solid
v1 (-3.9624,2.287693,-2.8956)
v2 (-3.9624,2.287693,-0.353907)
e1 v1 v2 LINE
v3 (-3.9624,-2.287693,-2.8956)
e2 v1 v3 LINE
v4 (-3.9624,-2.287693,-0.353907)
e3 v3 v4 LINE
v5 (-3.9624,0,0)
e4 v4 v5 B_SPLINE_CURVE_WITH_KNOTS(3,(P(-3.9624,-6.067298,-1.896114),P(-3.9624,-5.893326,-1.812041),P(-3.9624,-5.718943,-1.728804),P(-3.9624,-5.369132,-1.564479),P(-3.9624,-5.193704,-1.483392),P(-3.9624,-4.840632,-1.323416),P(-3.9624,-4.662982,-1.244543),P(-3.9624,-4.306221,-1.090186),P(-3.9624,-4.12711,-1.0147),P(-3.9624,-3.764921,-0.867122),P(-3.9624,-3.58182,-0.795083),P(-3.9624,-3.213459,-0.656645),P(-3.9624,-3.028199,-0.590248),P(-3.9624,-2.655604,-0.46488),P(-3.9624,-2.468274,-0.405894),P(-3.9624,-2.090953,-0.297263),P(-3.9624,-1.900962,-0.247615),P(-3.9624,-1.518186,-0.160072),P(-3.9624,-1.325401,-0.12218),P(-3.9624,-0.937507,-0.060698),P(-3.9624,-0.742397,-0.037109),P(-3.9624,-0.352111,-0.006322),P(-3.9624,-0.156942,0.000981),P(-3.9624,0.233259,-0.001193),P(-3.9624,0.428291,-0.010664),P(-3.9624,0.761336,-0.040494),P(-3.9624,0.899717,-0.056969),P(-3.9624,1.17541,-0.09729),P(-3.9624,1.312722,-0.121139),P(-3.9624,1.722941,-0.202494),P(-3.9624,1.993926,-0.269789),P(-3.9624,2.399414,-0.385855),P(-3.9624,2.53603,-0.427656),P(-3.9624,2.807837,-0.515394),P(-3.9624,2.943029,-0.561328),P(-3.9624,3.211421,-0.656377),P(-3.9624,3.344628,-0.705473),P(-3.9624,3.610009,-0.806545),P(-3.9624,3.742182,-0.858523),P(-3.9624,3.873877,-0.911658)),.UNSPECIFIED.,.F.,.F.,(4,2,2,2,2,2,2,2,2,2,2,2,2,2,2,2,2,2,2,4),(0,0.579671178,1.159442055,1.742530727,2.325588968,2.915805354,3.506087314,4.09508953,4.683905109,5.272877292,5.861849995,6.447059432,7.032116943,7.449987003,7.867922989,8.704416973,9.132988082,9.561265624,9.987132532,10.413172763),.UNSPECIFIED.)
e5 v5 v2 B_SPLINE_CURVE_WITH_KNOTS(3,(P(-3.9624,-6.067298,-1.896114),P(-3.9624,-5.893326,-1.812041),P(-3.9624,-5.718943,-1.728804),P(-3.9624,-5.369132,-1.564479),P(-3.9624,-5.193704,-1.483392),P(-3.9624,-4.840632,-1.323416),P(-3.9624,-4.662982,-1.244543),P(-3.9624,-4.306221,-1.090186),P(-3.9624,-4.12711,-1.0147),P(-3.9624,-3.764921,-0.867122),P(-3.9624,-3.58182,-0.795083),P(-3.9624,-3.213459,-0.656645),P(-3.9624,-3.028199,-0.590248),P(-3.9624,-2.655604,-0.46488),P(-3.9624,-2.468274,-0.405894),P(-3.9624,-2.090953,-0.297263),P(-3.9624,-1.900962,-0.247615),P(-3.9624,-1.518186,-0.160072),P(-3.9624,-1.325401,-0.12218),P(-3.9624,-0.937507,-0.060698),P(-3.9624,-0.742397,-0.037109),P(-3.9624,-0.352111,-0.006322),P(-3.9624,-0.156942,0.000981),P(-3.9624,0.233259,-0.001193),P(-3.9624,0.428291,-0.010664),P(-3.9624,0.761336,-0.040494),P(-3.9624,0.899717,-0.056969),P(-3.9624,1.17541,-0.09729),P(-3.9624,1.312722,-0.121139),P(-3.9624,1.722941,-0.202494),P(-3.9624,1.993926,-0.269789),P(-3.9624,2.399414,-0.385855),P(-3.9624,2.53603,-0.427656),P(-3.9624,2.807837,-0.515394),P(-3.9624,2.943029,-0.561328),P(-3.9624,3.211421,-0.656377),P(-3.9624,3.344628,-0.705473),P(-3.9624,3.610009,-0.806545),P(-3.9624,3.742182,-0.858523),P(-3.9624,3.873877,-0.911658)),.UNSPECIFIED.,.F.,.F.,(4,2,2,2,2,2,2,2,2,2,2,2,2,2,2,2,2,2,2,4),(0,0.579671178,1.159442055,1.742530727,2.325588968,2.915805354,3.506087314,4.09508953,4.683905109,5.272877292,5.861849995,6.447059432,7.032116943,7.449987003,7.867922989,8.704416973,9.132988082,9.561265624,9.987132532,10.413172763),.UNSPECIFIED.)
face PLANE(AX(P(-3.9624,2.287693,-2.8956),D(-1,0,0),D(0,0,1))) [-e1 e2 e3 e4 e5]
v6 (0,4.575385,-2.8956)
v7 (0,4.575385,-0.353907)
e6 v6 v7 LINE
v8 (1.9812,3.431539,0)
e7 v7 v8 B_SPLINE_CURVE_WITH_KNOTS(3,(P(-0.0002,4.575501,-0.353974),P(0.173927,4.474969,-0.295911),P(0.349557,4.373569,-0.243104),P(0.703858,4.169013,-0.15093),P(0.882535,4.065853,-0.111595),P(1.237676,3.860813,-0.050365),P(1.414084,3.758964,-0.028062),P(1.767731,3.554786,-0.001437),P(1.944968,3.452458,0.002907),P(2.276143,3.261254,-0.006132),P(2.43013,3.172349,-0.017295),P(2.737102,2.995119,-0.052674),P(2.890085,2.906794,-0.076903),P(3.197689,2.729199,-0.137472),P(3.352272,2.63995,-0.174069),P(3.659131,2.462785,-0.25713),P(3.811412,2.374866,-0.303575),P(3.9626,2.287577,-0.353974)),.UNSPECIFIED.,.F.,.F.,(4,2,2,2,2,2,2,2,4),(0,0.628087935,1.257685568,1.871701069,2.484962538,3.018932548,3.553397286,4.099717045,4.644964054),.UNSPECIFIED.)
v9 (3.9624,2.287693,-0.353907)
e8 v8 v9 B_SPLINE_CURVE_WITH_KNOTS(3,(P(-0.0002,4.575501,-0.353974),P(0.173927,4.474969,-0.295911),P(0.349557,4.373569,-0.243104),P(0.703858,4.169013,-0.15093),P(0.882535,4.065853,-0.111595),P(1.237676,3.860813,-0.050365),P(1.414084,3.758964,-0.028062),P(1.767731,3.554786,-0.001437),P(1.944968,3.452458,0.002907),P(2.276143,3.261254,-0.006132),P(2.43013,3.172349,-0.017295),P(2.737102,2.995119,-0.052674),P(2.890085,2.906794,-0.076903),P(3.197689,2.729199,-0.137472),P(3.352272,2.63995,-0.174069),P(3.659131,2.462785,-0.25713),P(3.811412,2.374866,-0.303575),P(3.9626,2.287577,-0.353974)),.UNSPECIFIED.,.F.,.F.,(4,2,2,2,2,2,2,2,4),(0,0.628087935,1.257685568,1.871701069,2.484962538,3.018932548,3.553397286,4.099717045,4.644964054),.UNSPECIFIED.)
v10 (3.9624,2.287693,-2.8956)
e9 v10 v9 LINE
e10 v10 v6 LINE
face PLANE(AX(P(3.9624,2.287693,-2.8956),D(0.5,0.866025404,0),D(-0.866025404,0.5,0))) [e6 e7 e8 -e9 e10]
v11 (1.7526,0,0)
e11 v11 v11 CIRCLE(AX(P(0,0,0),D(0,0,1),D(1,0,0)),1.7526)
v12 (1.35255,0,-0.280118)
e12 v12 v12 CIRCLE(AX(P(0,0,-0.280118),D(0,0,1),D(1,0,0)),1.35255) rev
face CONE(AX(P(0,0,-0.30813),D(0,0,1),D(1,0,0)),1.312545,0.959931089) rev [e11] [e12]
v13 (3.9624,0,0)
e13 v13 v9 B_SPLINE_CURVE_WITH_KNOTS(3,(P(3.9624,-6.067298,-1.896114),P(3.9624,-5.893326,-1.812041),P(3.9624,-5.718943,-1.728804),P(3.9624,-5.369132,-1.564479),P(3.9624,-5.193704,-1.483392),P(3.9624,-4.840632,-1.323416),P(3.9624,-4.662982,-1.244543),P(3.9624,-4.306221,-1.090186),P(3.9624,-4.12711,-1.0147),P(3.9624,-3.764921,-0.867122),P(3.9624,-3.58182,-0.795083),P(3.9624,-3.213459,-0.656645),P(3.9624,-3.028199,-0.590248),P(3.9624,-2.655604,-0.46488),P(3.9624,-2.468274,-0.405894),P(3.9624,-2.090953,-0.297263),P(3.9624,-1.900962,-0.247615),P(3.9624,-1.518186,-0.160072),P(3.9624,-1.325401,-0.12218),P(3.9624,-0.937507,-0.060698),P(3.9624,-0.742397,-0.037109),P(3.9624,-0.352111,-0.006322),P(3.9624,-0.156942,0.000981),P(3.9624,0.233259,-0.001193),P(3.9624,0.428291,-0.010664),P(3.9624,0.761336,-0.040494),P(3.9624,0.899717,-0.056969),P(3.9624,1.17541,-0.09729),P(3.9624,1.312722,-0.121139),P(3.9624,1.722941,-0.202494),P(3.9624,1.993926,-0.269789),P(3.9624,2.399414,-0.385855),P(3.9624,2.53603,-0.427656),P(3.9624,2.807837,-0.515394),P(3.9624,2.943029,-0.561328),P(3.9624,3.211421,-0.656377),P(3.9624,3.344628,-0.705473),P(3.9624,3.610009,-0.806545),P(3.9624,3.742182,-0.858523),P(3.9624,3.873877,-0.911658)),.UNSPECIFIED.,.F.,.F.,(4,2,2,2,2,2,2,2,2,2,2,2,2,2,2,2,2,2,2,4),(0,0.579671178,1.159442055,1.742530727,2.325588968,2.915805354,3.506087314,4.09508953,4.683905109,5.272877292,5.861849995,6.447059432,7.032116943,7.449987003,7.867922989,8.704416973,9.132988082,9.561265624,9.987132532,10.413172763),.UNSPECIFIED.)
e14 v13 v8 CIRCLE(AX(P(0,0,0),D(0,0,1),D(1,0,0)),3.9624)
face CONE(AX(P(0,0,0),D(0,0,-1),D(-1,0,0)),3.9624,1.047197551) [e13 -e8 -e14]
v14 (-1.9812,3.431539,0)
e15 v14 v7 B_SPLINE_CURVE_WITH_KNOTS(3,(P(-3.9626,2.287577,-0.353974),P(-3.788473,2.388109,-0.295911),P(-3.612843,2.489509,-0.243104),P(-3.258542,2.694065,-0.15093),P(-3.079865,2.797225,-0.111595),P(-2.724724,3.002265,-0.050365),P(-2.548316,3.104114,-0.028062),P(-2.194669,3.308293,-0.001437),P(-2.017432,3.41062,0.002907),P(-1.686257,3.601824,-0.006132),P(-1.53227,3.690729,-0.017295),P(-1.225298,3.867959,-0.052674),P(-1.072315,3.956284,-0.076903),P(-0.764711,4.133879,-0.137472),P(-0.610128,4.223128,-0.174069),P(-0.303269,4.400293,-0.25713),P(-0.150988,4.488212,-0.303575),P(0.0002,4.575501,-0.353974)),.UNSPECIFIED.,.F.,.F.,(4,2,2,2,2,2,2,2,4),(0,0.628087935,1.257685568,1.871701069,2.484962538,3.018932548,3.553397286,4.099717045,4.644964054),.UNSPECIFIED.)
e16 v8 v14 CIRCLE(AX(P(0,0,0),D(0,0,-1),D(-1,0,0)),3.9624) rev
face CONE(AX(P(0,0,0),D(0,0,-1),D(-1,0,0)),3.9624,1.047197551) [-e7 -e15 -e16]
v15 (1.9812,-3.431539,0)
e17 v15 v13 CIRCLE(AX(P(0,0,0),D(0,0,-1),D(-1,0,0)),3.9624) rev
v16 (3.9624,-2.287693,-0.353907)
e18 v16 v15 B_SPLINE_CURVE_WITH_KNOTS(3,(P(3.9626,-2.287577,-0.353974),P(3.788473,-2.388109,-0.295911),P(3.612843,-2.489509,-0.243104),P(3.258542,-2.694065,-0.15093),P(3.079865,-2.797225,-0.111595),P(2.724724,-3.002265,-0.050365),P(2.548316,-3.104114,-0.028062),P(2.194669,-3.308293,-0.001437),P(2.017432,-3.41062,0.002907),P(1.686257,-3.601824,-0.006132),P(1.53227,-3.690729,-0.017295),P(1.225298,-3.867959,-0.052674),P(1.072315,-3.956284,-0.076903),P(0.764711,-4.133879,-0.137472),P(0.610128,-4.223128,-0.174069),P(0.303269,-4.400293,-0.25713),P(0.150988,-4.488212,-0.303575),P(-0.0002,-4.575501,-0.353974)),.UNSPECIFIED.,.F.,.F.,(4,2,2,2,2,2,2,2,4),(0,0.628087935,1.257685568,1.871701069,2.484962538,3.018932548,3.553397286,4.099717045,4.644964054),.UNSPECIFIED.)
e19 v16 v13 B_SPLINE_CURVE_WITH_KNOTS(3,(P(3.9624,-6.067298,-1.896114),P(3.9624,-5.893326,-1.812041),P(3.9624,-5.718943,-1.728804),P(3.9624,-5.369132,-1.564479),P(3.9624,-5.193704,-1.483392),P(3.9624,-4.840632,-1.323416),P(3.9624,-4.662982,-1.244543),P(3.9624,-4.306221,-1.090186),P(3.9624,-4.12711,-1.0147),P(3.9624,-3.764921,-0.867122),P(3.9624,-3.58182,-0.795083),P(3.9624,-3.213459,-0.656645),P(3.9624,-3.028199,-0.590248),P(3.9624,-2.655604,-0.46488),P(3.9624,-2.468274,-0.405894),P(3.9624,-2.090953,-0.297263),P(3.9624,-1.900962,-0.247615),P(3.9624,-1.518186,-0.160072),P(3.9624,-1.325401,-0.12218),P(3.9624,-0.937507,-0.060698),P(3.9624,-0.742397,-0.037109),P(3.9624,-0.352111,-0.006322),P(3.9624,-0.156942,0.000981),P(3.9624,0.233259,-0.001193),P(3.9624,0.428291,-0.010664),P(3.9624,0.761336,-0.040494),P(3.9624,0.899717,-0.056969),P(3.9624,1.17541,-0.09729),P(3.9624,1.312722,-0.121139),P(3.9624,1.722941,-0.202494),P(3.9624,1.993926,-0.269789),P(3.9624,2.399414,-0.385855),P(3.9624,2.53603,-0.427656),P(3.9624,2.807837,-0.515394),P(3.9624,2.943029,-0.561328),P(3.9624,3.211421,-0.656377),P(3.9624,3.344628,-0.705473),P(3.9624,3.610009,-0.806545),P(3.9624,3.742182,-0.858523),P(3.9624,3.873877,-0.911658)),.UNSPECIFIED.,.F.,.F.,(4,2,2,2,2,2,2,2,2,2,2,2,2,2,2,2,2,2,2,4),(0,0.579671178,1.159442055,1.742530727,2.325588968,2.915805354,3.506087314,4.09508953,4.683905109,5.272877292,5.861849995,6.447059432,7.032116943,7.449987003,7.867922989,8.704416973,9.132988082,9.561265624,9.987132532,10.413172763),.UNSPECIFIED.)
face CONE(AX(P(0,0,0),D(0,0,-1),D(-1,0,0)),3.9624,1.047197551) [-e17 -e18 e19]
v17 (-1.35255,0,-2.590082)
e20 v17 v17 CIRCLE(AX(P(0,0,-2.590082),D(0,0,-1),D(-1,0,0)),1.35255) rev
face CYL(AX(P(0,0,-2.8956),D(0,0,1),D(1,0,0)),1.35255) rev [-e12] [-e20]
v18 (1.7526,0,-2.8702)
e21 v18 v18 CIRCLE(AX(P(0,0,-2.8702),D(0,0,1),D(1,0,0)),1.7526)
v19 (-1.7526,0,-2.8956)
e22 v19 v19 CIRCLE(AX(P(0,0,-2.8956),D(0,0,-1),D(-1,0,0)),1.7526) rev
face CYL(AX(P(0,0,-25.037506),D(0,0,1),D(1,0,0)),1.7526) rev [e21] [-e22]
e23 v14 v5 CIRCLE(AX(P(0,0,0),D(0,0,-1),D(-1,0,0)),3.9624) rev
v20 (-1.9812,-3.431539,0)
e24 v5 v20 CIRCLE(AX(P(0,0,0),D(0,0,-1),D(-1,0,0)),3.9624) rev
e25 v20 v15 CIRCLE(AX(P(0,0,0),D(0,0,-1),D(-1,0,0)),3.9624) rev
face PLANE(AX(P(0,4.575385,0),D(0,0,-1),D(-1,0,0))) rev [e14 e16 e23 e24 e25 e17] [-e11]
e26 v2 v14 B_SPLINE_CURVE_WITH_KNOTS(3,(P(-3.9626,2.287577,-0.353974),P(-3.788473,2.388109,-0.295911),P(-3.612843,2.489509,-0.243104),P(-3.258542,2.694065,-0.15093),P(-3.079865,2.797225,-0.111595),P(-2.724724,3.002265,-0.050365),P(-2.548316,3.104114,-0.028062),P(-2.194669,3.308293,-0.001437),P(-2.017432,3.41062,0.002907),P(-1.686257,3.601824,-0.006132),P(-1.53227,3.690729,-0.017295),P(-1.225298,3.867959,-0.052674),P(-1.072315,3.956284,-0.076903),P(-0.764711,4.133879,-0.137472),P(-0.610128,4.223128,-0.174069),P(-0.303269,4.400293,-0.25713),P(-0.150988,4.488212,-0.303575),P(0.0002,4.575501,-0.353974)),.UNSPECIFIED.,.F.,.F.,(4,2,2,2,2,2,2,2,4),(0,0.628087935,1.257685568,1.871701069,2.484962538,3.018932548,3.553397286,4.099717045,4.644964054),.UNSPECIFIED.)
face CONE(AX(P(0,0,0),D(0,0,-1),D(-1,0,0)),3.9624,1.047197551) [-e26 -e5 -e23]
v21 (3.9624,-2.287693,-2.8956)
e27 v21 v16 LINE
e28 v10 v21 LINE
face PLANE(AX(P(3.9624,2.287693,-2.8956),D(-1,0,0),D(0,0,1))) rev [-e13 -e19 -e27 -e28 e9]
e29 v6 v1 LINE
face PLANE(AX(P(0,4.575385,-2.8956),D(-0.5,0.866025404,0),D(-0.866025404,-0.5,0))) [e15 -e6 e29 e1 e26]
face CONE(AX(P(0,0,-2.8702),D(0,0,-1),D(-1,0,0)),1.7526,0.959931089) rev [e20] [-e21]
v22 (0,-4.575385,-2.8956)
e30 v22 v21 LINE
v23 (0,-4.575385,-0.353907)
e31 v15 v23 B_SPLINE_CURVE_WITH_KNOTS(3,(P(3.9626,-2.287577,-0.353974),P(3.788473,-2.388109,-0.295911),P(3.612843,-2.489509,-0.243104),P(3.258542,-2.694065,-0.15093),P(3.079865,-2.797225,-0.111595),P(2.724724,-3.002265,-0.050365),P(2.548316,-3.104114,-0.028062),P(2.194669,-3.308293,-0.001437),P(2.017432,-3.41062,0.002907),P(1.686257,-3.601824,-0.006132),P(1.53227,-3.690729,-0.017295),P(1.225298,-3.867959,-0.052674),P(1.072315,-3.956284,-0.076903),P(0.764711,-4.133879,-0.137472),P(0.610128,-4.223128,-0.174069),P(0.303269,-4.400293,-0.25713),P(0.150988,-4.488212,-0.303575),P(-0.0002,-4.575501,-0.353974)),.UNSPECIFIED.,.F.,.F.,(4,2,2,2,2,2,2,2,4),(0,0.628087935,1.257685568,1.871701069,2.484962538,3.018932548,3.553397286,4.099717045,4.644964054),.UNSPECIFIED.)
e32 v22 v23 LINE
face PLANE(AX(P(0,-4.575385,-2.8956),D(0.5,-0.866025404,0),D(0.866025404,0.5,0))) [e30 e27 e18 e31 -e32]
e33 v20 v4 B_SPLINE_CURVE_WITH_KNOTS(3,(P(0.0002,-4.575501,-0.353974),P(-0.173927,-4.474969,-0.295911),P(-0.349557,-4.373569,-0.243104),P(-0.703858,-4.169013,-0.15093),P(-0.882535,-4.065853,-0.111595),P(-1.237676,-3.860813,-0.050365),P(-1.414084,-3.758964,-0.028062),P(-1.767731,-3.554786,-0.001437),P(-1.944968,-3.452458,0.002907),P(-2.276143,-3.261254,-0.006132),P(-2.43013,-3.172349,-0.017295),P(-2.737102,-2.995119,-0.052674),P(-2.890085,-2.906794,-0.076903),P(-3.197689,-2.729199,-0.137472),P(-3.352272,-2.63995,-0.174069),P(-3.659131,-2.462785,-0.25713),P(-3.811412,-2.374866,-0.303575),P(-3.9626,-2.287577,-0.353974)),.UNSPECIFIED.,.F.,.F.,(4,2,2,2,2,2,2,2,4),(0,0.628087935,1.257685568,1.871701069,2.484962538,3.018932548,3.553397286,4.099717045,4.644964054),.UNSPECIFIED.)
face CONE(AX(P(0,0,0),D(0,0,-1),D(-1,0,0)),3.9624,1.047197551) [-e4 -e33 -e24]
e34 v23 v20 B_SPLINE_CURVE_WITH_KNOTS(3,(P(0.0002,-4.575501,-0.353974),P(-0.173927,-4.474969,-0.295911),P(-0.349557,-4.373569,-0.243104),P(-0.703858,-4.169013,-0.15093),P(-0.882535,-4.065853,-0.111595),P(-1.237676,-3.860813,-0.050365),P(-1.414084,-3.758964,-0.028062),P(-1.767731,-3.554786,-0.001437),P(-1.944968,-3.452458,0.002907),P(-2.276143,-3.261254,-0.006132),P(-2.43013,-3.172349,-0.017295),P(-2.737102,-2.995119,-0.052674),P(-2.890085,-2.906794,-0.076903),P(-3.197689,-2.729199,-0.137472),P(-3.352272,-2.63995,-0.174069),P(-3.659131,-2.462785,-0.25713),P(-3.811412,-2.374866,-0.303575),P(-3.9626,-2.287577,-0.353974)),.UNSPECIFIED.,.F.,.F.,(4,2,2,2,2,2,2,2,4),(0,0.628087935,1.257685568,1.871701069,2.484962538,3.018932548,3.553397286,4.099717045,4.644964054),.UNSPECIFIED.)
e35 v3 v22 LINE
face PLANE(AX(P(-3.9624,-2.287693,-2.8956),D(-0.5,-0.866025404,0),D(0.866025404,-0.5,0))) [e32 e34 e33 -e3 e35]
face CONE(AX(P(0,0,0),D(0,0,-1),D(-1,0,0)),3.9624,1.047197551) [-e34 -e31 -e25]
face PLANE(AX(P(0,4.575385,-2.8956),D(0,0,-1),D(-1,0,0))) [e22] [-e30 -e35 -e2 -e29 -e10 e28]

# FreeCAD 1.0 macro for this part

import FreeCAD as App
import Part
import Sketcher
from FreeCAD import Vector
Q = App.Units.Quantity

doc = App.newDocument("Part")
body = doc.addObject("PartDesign::Body", "Body")

sketch1 = body.newObject("Sketcher::SketchObject", "Sketch")
sketch1.AttachmentSupport = (doc.getObject("XY_Plane"), [""])
sketch1.MapMode = "FlatFace"
sketch1.AttachmentOffset = App.Placement(Vector(0, 0, -0.114 * 25.4), App.Rotation())
sketch1.addGeometry([
    Part.LineSegment(Vector(4, -2.3, 0), Vector(4, 2.3, 0)),
    Part.LineSegment(Vector(4, 2.3, 0), Vector(0, 4.6, 0)),
    Part.LineSegment(Vector(0, 4.6, 0), Vector(-4, 2.3, 0)),
    Part.LineSegment(Vector(-4, 2.3, 0), Vector(-4, -2.3, 0)),
    Part.LineSegment(Vector(-4, -2.3, 0), Vector(0, -4.6, 0)),
    Part.LineSegment(Vector(0, -4.6, 0), Vector(4, -2.3, 0)),
    Part.Circle(Vector(0, 0, 0), Vector(0, 0, 1), 1.4),
], False)
sketch1.addConstraint([
    Sketcher.Constraint("Coincident", 0, 2, 1, 1),
    Sketcher.Constraint("Coincident", 1, 2, 2, 1),
    Sketcher.Constraint("Coincident", 2, 2, 3, 1),
    Sketcher.Constraint("Coincident", 3, 2, 4, 1),
    Sketcher.Constraint("Coincident", 4, 2, 5, 1),
    Sketcher.Constraint("Coincident", 5, 2, 0, 1),
    Sketcher.Constraint("Vertical", 0),
    Sketcher.Constraint("Vertical", 3),
    Sketcher.Constraint("Coincident", 6, 3, -1, 1),
    Sketcher.Constraint("Symmetric", 0, 2, 3, 2, -1, 1),
    Sketcher.Constraint("Symmetric", 1, 2, 4, 2, -1, 1),
    Sketcher.Constraint("PointOnObject", 1, 2, -2),
    Sketcher.Constraint("Parallel", 2, 5),
    Sketcher.Constraint("Horizontal", 0, 2, 2, 2),
    Sketcher.Constraint("Angle", 1, Q("150 deg")),
    Sketcher.Constraint("Diameter", 6, Q("0.1065 in")),
    Sketcher.Constraint("DistanceX", -1, 1, 0, 2, Q("0.156 in")),
    Sketcher.Constraint("DistanceY", 3, 2, 1, 2, Q("0.2701999 in")),
])
pad1 = body.newObject("PartDesign::Pad", "Pad")
pad1.Profile = sketch1
pad1.Length = Q("0.114 in")

sketch2 = body.newObject("Sketcher::SketchObject", "Sketch001")
sketch2.AttachmentSupport = (doc.getObject("YZ_Plane"), [""])
sketch2.MapMode = "FlatFace"
sketch2.addGeometry([
    Part.LineSegment(Vector(4, 12.7, 0), Vector(4, 0, 0)),
    Part.LineSegment(Vector(4, 0, 0), Vector(4.6, -0.4, 0)),
    Part.LineSegment(Vector(4.6, -0.4, 0), Vector(17.3, -0.4, 0)),
    Part.LineSegment(Vector(17.3, -0.4, 0), Vector(17.3, 12.7, 0)),
    Part.LineSegment(Vector(17.3, 12.7, 0), Vector(4, 12.7, 0)),
], False)
sketch2.addConstraint([
    Sketcher.Constraint("Coincident", 0, 2, 1, 1),
    Sketcher.Constraint("Coincident", 1, 2, 2, 1),
    Sketcher.Constraint("Coincident", 2, 2, 3, 1),
    Sketcher.Constraint("Coincident", 3, 2, 4, 1),
    Sketcher.Constraint("Coincident", 4, 2, 0, 1),
    Sketcher.Constraint("Vertical", 0),
    Sketcher.Constraint("Horizontal", 2),
    Sketcher.Constraint("Vertical", 3),
    Sketcher.Constraint("Horizontal", 4),
    Sketcher.Constraint("PointOnObject", 0, 2, -1),
    Sketcher.Constraint("Equal", 2, 0),
    Sketcher.Constraint("DistanceX", 2, 1, 2, 2, Q("0.5 in")),
    Sketcher.Constraint("Angle", 1, Q("-30 deg")),
    Sketcher.Constraint("DistanceX", -1, 1, 0, 2, Q("0.156 in")),
    Sketcher.Constraint("DistanceX", 4, 2, 4, 1, Q("13.312985 mm")),
])
groove = body.newObject("PartDesign::Groove", "Groove")
groove.Profile = sketch2
groove.ReferenceAxis = (sketch2, ["V_Axis"])
groove.Angle = 360

sketch3 = body.newObject("Sketcher::SketchObject", "Sketch002")
sketch3.AttachmentSupport = (doc.getObject("YZ_Plane"), [""])
sketch3.MapMode = "FlatFace"
sketch3.addGeometry([
    Part.LineSegment(Vector(1.75, -2.87, 0), Vector(1.31, -2.56, 0)),
    Part.LineSegment(Vector(1.31, -2.56, 0), Vector(1.31, -2.92, 0)),
    Part.LineSegment(Vector(1.31, -2.92, 0), Vector(1.75, -2.92, 0)),
    Part.LineSegment(Vector(1.75, -2.92, 0), Vector(1.75, -2.87, 0)),
    Part.LineSegment(Vector(1.75, 0, 0), Vector(1.75, 0.05, 0)),
    Part.LineSegment(Vector(1.75, 0.05, 0), Vector(1.31, 0.05, 0)),
    Part.LineSegment(Vector(1.31, 0.05, 0), Vector(1.31, -0.31, 0)),
    Part.LineSegment(Vector(1.31, -0.31, 0), Vector(1.75, 0, 0)),
], False)
sketch3.addConstraint([
    Sketcher.Constraint("Coincident", 0, 2, 1, 1),
    Sketcher.Constraint("Coincident", 1, 2, 2, 1),
    Sketcher.Constraint("Coincident", 2, 2, 3, 1),
    Sketcher.Constraint("Coincident", 3, 2, 0, 1),
    Sketcher.Constraint("Coincident", 4, 2, 5, 1),
    Sketcher.Constraint("Coincident", 5, 2, 6, 1),
    Sketcher.Constraint("Coincident", 6, 2, 7, 1),
    Sketcher.Constraint("Coincident", 7, 2, 4, 1),
    Sketcher.Constraint("Vertical", 1),
    Sketcher.Constraint("Horizontal", 2),
    Sketcher.Constraint("Vertical", 3),
    Sketcher.Constraint("Vertical", 4),
    Sketcher.Constraint("Horizontal", 5),
    Sketcher.Constraint("Vertical", 6),
    Sketcher.Constraint("PointOnObject", 7, 2, -1),
    Sketcher.Constraint("Vertical", 3, 2, 4, 2),
    Sketcher.Constraint("Vertical", 1, 2, 5, 2),
    Sketcher.Constraint("Equal", 3, 4),
    Sketcher.Constraint("Equal", 1, 6),
    Sketcher.Constraint("Angle", 0, Q("145 deg")),
    Sketcher.Constraint("DistanceY", 3, 1, 3, 2, Q("0.002 in")),
    Sketcher.Constraint("DistanceY", 1, 2, -1, 1, Q("0.115 in")),
    Sketcher.Constraint("DistanceX", -1, 1, 2, 2, Q("0.069 in")),
    Sketcher.Constraint("DistanceY", 1, 2, 1, 1, Q("0.35893 mm")),
])
groove2 = body.newObject("PartDesign::Groove", "Groove001")
groove2.Profile = sketch3
groove2.ReferenceAxis = (sketch3, ["V_Axis"])
groove2.Angle = 360

doc.recompute()
